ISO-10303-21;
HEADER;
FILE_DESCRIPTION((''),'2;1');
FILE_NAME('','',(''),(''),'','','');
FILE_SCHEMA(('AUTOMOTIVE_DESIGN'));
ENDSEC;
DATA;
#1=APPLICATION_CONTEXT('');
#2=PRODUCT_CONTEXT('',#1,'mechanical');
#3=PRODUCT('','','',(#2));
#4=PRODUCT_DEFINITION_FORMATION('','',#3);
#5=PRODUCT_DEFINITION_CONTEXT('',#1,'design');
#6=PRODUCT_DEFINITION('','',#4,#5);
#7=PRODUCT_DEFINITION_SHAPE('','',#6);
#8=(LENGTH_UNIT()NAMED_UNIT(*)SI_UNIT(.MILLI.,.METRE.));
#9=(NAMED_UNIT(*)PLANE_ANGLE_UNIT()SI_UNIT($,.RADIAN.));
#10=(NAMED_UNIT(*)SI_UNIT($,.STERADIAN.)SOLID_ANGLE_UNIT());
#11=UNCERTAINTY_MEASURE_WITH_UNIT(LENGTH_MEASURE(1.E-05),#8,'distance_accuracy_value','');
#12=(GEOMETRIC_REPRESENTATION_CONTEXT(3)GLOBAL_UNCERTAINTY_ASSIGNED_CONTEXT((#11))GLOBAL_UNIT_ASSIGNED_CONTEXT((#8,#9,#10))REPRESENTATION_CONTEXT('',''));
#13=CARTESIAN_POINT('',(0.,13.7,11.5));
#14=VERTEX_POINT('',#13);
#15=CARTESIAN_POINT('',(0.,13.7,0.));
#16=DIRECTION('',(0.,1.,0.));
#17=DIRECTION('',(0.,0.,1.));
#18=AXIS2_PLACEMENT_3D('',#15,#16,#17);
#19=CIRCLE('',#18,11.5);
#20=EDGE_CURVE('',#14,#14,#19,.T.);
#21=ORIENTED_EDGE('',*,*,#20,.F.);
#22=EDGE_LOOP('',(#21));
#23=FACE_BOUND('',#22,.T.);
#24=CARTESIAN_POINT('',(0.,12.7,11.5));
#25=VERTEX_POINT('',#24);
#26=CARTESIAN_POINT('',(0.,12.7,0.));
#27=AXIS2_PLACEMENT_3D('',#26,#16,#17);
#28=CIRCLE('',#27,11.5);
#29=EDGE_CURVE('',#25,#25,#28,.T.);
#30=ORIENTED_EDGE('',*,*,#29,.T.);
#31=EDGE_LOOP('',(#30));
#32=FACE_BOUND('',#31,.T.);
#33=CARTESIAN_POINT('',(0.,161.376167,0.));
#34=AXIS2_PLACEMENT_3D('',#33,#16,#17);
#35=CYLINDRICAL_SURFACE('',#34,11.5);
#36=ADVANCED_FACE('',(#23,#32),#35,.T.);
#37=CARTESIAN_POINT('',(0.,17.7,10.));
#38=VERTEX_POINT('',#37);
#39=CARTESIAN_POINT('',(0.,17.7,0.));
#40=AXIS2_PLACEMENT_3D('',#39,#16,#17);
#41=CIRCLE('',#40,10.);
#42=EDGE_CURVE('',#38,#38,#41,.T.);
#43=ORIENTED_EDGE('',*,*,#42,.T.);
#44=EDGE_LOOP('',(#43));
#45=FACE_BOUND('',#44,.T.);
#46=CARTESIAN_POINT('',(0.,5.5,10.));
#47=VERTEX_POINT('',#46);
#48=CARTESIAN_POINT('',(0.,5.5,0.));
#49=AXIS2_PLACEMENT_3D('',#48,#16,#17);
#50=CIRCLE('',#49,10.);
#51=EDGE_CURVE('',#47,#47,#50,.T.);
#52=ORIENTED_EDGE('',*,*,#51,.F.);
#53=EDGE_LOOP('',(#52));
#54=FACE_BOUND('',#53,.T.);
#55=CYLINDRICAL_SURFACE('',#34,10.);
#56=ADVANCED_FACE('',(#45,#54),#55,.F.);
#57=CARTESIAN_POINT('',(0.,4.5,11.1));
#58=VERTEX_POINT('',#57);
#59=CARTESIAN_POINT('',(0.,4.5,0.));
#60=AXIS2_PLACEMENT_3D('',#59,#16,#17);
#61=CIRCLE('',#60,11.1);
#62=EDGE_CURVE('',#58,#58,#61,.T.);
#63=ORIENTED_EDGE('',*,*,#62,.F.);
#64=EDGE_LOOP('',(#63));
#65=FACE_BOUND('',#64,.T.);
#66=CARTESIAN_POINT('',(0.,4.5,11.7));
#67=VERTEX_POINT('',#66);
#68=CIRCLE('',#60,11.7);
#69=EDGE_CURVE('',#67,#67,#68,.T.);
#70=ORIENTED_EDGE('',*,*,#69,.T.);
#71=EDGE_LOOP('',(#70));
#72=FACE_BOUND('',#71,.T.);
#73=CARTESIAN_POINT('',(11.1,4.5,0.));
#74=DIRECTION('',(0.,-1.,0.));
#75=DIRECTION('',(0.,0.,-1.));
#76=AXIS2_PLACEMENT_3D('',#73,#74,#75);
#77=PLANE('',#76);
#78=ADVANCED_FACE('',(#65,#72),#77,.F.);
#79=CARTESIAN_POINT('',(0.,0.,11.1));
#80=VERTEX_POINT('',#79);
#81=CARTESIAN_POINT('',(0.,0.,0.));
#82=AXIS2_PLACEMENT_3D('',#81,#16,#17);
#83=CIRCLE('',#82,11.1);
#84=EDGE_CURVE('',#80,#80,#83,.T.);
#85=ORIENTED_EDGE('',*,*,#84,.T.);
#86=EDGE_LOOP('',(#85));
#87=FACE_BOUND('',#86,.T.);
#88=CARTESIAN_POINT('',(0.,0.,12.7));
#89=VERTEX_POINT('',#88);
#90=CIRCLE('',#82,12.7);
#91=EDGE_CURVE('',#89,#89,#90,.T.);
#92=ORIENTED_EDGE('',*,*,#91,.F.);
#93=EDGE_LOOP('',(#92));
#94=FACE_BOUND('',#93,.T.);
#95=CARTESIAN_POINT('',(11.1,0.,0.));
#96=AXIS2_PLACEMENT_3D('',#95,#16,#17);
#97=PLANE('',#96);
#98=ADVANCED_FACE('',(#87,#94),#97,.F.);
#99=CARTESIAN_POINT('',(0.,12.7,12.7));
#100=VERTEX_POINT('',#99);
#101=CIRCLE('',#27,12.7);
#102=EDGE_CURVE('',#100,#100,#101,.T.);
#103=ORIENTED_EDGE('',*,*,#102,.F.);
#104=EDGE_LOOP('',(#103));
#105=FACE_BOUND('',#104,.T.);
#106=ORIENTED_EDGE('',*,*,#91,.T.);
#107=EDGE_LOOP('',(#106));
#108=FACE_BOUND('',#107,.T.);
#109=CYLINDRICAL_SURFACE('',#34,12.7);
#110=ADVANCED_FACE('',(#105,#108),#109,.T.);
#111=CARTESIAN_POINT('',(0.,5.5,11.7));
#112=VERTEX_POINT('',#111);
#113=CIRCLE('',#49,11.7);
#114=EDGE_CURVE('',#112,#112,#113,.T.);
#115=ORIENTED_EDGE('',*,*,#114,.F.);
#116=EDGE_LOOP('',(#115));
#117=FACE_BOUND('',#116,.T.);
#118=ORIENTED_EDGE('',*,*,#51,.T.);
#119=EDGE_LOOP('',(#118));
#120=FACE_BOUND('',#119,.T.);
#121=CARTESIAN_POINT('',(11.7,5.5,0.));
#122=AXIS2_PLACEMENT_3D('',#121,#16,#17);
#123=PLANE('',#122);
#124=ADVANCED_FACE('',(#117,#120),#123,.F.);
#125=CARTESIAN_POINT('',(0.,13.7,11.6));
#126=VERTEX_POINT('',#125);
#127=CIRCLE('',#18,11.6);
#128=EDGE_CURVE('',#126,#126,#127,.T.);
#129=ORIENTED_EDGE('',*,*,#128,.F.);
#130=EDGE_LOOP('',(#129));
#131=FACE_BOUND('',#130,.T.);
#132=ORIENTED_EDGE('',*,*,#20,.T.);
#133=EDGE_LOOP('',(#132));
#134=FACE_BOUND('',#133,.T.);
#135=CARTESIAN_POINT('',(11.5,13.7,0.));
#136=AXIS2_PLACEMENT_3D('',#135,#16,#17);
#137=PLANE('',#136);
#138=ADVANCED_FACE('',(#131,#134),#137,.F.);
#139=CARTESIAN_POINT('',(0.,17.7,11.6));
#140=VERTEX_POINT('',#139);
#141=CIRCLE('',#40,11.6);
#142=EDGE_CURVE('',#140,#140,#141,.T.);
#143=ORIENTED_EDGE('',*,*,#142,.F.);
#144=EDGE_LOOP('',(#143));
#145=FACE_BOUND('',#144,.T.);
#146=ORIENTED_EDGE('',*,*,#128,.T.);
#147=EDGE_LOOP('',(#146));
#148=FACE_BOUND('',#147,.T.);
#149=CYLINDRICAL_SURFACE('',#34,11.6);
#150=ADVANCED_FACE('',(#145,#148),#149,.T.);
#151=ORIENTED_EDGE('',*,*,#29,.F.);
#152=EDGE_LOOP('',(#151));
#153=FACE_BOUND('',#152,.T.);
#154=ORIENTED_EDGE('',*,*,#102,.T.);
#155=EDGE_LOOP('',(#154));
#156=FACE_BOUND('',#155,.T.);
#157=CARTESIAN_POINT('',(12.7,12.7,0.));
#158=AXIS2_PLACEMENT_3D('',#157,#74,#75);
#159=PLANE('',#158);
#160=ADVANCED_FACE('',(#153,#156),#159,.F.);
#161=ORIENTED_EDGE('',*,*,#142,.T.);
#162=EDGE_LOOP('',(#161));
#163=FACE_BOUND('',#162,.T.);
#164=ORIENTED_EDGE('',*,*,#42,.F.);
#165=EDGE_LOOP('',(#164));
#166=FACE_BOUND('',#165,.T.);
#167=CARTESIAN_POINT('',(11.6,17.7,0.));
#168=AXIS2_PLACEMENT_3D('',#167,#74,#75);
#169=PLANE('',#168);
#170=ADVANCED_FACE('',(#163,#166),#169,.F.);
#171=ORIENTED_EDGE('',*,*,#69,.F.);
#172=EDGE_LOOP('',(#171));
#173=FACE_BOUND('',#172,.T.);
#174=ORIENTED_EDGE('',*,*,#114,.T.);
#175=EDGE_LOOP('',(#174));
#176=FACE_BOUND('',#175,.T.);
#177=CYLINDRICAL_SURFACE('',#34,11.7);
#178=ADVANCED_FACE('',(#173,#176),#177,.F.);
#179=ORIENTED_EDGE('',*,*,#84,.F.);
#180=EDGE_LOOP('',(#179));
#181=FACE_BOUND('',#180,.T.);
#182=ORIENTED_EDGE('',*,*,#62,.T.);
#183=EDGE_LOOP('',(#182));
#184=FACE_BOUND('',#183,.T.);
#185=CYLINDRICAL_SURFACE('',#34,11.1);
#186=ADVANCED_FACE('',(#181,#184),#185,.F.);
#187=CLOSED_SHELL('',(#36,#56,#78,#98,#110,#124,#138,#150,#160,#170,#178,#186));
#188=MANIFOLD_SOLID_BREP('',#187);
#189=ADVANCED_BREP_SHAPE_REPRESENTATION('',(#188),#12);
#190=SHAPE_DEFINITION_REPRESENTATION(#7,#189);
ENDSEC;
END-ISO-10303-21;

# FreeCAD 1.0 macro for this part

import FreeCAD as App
import Part
import Sketcher
Q = App.Units.Quantity

doc = App.newDocument("Part")
params = doc.addObject("Spreadsheet::Sheet", "Params")
for row, (alias, value) in enumerate([
    ("sketch1_height", "1 mm"),
    ("sketch1_height2", "4 mm"),
    ("sketch1_width", "1.2 mm"),
    ("sketch1_width2", "0.1 mm"),
    ("sketch1_width3", "1.6 mm"),
    ("revolution_angle", "360 deg"),
], start=1):
    params.set(f"A{row}", alias)
    params.set(f"B{row}", "=" + value)
    params.setAlias(f"B{row}", alias)

body = doc.addObject("PartDesign::Body", "Body")

# Sketch on XY plane
sketch1 = body.newObject("Sketcher::SketchObject", "Sketch")
sketch1.AttachmentSupport = (doc.getObject("XY_Plane"), [""])
sketch1.MapMode = "FlatFace"
sketch1.addGeometry([
    Part.LineSegment(App.Vector(12.7, 0, 0), App.Vector(12.7, 12.7, 0)),  # 0
    Part.LineSegment(App.Vector(12.7, 12.7, 0), App.Vector(11.5, 12.7, 0)),  # 1
    Part.LineSegment(App.Vector(11.5, 12.7, 0), App.Vector(11.5, 13.7, 0)),  # 2
    Part.LineSegment(App.Vector(11.5, 13.7, 0), App.Vector(11.6, 13.7, 0)),  # 3
    Part.LineSegment(App.Vector(11.6, 13.7, 0), App.Vector(11.6, 17.7, 0)),  # 4
    Part.LineSegment(App.Vector(11.6, 17.7, 0), App.Vector(10, 17.7, 0)),  # 5
    Part.LineSegment(App.Vector(10, 17.7, 0), App.Vector(10, 5.5, 0)),  # 6
    Part.LineSegment(App.Vector(10, 5.5, 0), App.Vector(11.7, 5.5, 0)),  # 7
    Part.LineSegment(App.Vector(11.7, 5.5, 0), App.Vector(11.7, 4.5, 0)),  # 8
    Part.LineSegment(App.Vector(11.7, 4.5, 0), App.Vector(11.1, 4.5, 0)),  # 9
    Part.LineSegment(App.Vector(11.1, 4.5, 0), App.Vector(11.1, 0, 0)),  # 10
    Part.LineSegment(App.Vector(11.1, 0, 0), App.Vector(12.7, 0, 0)),  # 11
], False)
sketch1.addConstraint([
    Sketcher.Constraint("Coincident", 0, 2, 1, 1),
    Sketcher.Constraint("Coincident", 1, 2, 2, 1),
    Sketcher.Constraint("Coincident", 2, 2, 3, 1),
    Sketcher.Constraint("Coincident", 3, 2, 4, 1),
    Sketcher.Constraint("Coincident", 4, 2, 5, 1),
    Sketcher.Constraint("Coincident", 5, 2, 6, 1),
    Sketcher.Constraint("Coincident", 6, 2, 7, 1),
    Sketcher.Constraint("Coincident", 7, 2, 8, 1),
    Sketcher.Constraint("Coincident", 8, 2, 9, 1),
    Sketcher.Constraint("Coincident", 9, 2, 10, 1),
    Sketcher.Constraint("Coincident", 10, 2, 11, 1),
    Sketcher.Constraint("Coincident", 11, 2, 0, 1),
    Sketcher.Constraint("Vertical", 0),
    Sketcher.Constraint("Horizontal", 1),
    Sketcher.Constraint("Vertical", 2),
    Sketcher.Constraint("Horizontal", 3),
    Sketcher.Constraint("Vertical", 4),
    Sketcher.Constraint("Horizontal", 5),
    Sketcher.Constraint("Vertical", 6),
    Sketcher.Constraint("Horizontal", 7),
    Sketcher.Constraint("Vertical", 8),
    Sketcher.Constraint("Horizontal", 9),
    Sketcher.Constraint("Vertical", 10),
    Sketcher.Constraint("Horizontal", 11),
    Sketcher.Constraint("PointOnObject", 10, 2, -1),
    Sketcher.Constraint("Equal", 5, 11),
    Sketcher.Constraint("Equal", 2, 8),
    Sketcher.Constraint("DistanceY", 2, 1, 2, 2, Q("1 mm")),
    Sketcher.Constraint("DistanceY", 4, 1, 4, 2, Q("4 mm")),
    Sketcher.Constraint("DistanceX", 1, 2, 1, 1, Q("1.2 mm")),
    Sketcher.Constraint("DistanceX", 3, 1, 3, 2, Q("0.1 mm")),
    Sketcher.Constraint("DistanceX", 5, 2, 5, 1, Q("1.6 mm")),
    Sketcher.Constraint("DistanceX", 7, 1, 7, 2, Q("1.7 mm")),
    Sketcher.Constraint("DistanceY", 0, 1, 0, 2, Q("12.7 mm")),
    Sketcher.Constraint("DistanceY", 6, 2, 6, 1, Q("12.2 mm")),
    Sketcher.Constraint("DistanceX", -1, 1, 5, 2, Q("10 mm")),
])
sketch1.setExpression("Constraints[27]", "Params.sketch1_height")
sketch1.setExpression("Constraints[28]", "Params.sketch1_height2")
sketch1.setExpression("Constraints[29]", "Params.sketch1_width")
sketch1.setExpression("Constraints[30]", "Params.sketch1_width2")
sketch1.setExpression("Constraints[31]", "Params.sketch1_width3")
revolution = body.newObject("PartDesign::Revolution", "Revolution")
revolution.Profile = sketch1
revolution.ReferenceAxis = (sketch1, ["V_Axis"])
revolution.setExpression("Angle", "Params.revolution_angle")

doc.recompute()
